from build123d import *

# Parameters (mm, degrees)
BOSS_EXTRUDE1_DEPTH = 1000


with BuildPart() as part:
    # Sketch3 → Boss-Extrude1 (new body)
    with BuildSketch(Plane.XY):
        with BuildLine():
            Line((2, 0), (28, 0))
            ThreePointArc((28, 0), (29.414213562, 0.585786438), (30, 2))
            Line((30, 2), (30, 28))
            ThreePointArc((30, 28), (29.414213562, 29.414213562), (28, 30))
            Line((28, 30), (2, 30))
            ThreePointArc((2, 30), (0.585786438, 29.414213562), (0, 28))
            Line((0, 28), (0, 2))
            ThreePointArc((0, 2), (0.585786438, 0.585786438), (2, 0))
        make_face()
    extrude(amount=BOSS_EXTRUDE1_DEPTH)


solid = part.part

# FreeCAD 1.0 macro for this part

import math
import FreeCAD as App
import Part
import Sketcher
from FreeCAD import Vector

doc = App.newDocument("Part")
params = doc.addObject("Spreadsheet::Sheet", "Params")
for row, (alias, value) in enumerate([
    ("sketch1_radius", "2 mm"),
    ("sketch1_width", "26 mm"),
    ("pad1_length", "1000 mm"),
], start=1):
    params.set(f"A{row}", alias)
    params.set(f"B{row}", "=" + value)
    params.setAlias(f"B{row}", alias)

body = doc.addObject("PartDesign::Body", "Body")

# Sketch on XY plane
sketch1 = doc.addObject("Sketcher::SketchObject", "Sketch")
body.addObject(sketch1)
sketch1.AttachmentSupport = (doc.XY_Plane, [""])
sketch1.MapMode = "FlatFace"
sketch1.addGeometry(Part.LineSegment(Vector(2, 0, 0), Vector(28, 0, 0)), False)
sketch1.addGeometry(Part.ArcOfCircle(Part.Circle(Vector(28, 2, 0), Vector(0, 0, 1), 2), math.radians(-90), math.radians(0)), False)
sketch1.addGeometry(Part.LineSegment(Vector(30, 2, 0), Vector(30, 28, 0)), False)
sketch1.addGeometry(Part.ArcOfCircle(Part.Circle(Vector(28, 28, 0), Vector(0, 0, 1), 2), math.radians(0), math.radians(90)), False)
sketch1.addGeometry(Part.LineSegment(Vector(28, 30, 0), Vector(2, 30, 0)), False)
sketch1.addGeometry(Part.ArcOfCircle(Part.Circle(Vector(2, 28, 0), Vector(0, 0, 1), 2), math.radians(90), math.radians(180)), False)
sketch1.addGeometry(Part.LineSegment(Vector(0, 28, 0), Vector(0, 2, 0)), False)
sketch1.addGeometry(Part.ArcOfCircle(Part.Circle(Vector(2, 2, 0), Vector(0, 0, 1), 2), math.radians(-180), math.radians(-90)), False)
sketch1.addConstraint(Sketcher.Constraint("Tangent", 0, 2, 1, 1))
sketch1.addConstraint(Sketcher.Constraint("Tangent", 1, 2, 2, 1))
sketch1.addConstraint(Sketcher.Constraint("Tangent", 2, 2, 3, 1))
sketch1.addConstraint(Sketcher.Constraint("Tangent", 3, 2, 4, 1))
sketch1.addConstraint(Sketcher.Constraint("Tangent", 4, 2, 5, 1))
sketch1.addConstraint(Sketcher.Constraint("Tangent", 5, 2, 6, 1))
sketch1.addConstraint(Sketcher.Constraint("Tangent", 6, 2, 7, 1))
sketch1.addConstraint(Sketcher.Constraint("Tangent", 7, 2, 0, 1))
sketch1.addConstraint(Sketcher.Constraint("Horizontal", 0))
sketch1.addConstraint(Sketcher.Constraint("Vertical", 2))
sketch1.addConstraint(Sketcher.Constraint("Horizontal", 4))
sketch1.addConstraint(Sketcher.Constraint("Vertical", 6))
sketch1.addConstraint(Sketcher.Constraint("Equal", 1, 3))
sketch1.addConstraint(Sketcher.Constraint("Equal", 3, 5))
sketch1.addConstraint(Sketcher.Constraint("Equal", 5, 7))
sketch1.addConstraint(Sketcher.Constraint("PointOnObject", 0, 2, -1))
sketch1.addConstraint(Sketcher.Constraint("PointOnObject", 5, 2, -2))
sketch1.addConstraint(Sketcher.Constraint("Equal", 4, 2))
sketch1.addConstraint(Sketcher.Constraint("Radius", 1, 2.0))
sketch1.addConstraint(Sketcher.Constraint("DistanceX", 0, 1, 0, 2, 26.0))
sketch1.setExpression("Constraints[18]", "Params.sketch1_radius")
sketch1.setExpression("Constraints[19]", "Params.sketch1_width")
pad1 = doc.addObject("PartDesign::Pad", "Pad")
body.addObject(pad1)
pad1.Profile = sketch1
pad1.setExpression("Length", "Params.pad1_length")

doc.recompute()
